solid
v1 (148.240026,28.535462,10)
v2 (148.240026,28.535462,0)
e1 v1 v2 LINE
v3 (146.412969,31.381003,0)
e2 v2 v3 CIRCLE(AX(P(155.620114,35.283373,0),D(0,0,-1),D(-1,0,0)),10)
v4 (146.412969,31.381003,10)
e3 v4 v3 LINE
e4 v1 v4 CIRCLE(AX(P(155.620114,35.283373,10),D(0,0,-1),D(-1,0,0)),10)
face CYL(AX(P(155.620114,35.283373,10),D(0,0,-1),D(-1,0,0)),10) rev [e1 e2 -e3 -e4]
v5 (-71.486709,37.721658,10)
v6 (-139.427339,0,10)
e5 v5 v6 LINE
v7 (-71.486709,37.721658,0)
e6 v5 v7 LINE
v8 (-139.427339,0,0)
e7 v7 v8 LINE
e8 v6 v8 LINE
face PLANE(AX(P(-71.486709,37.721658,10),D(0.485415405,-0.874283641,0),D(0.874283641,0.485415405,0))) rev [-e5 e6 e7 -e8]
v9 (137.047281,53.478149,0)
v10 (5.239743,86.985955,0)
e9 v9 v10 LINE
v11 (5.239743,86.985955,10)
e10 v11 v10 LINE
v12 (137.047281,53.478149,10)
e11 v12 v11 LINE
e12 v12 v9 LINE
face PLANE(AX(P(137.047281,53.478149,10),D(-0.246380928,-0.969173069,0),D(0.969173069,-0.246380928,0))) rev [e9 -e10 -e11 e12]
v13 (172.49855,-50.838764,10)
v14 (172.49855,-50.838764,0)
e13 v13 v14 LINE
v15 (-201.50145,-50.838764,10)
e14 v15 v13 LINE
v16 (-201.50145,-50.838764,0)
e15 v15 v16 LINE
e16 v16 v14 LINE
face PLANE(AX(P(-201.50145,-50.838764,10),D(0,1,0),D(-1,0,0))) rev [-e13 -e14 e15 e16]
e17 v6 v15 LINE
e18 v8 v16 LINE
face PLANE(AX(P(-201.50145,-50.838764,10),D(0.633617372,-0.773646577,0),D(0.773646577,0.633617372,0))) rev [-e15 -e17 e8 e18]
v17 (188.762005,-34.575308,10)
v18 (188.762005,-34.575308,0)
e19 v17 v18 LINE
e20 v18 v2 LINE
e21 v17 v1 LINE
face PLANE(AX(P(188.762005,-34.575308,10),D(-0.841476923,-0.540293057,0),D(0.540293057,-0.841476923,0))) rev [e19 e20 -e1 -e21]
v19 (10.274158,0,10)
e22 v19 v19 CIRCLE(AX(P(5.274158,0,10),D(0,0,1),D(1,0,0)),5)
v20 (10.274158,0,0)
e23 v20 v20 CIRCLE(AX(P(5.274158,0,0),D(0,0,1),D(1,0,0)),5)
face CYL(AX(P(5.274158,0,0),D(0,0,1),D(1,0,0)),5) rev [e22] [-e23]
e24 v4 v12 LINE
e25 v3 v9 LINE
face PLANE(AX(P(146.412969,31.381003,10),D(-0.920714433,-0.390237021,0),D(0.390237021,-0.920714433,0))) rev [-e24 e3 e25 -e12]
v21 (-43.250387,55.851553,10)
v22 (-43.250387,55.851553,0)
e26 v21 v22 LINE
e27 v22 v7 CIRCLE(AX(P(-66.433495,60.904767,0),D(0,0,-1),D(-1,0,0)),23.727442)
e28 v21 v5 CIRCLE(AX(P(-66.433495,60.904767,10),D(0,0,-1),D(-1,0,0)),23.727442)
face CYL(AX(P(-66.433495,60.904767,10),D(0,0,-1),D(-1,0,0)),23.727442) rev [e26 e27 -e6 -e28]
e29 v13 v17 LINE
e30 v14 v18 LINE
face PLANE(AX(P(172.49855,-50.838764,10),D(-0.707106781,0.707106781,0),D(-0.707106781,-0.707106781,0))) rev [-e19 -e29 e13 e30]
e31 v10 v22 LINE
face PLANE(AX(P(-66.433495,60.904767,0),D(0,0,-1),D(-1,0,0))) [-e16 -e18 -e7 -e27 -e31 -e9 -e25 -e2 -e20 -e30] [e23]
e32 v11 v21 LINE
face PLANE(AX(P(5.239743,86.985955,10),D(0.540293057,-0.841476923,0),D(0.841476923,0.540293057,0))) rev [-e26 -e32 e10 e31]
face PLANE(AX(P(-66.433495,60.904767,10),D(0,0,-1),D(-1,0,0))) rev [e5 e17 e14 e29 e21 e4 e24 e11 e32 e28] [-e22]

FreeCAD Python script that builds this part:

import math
import FreeCAD as App
import Part
import Sketcher
Q = App.Units.Quantity

doc = App.newDocument("Part")
body = doc.addObject("PartDesign::Body", "Body")

# Sketch on XY plane
sketch1 = body.newObject("Sketcher::SketchObject", "Sketch")
sketch1.AttachmentSupport = (doc.getObject("XY_Plane"), [""])
sketch1.MapMode = "FlatFace"
sketch1.addGeometry(Part.LineSegment(App.Vector(-201.5, -50.8, 0), App.Vector(172.5, -50.8, 0)), False)
sketch1.addGeometry(Part.LineSegment(App.Vector(172.5, -50.8, 0), App.Vector(188.8, -34.6, 0)), False)
sketch1.addGeometry(Part.LineSegment(App.Vector(188.8, -34.6, 0), App.Vector(148.2, 28.5, 0)), False)
sketch1.addGeometry(Part.ArcOfCircle(Part.Circle(App.Vector(155.6, 35.3, 0), App.Vector(0, 0, 1), 10), math.radians(-157.03), math.radians(-137.56)), False)
sketch1.addGeometry(Part.LineSegment(App.Vector(146.4, 31.4, 0), App.Vector(137, 53.5, 0)), False)
sketch1.addGeometry(Part.LineSegment(App.Vector(137, 53.5, 0), App.Vector(5.2, 87, 0)), False)
sketch1.addGeometry(Part.LineSegment(App.Vector(5.2, 87, 0), App.Vector(-43.3, 55.9, 0)), False)
sketch1.addGeometry(Part.ArcOfCircle(Part.Circle(App.Vector(-66.4, 60.9, 0), App.Vector(0, 0, 1), 23.7), math.radians(-102), math.radians(-12)), False)
sketch1.addGeometry(Part.LineSegment(App.Vector(-71.5, 37.7, 0), App.Vector(-139.4, 0, 0)), False)
sketch1.addGeometry(Part.LineSegment(App.Vector(-139.4, 0, 0), App.Vector(-201.5, -50.8, 0)), False)
sketch1.addConstraint(Sketcher.Constraint("Coincident", 0, 2, 1, 1))
sketch1.addConstraint(Sketcher.Constraint("Coincident", 1, 2, 2, 1))
sketch1.addConstraint(Sketcher.Constraint("Coincident", 2, 2, 3, 2))
sketch1.addConstraint(Sketcher.Constraint("Tangent", 3, 1, 4, 1))
sketch1.addConstraint(Sketcher.Constraint("Coincident", 4, 2, 5, 1))
sketch1.addConstraint(Sketcher.Constraint("Coincident", 5, 2, 6, 1))
sketch1.addConstraint(Sketcher.Constraint("Coincident", 6, 2, 7, 2))
sketch1.addConstraint(Sketcher.Constraint("Coincident", 7, 1, 8, 1))
sketch1.addConstraint(Sketcher.Constraint("Coincident", 8, 2, 9, 1))
sketch1.addConstraint(Sketcher.Constraint("Coincident", 9, 2, 0, 1))
sketch1.addConstraint(Sketcher.Constraint("Horizontal", 0))
sketch1.addConstraint(Sketcher.Constraint("PointOnObject", 8, 2, -1))
sketch1.addConstraint(Sketcher.Constraint("Perpendicular", 2, 6))
sketch1.addConstraint(Sketcher.Constraint("Radius", 3, Q("10 mm")))
sketch1.addConstraint(Sketcher.Constraint("DistanceX", 0, 1, 0, 2, Q("374 mm")))
sketch1.addConstraint(Sketcher.Constraint("Angle", 1, Q("45 deg")))
sketch1.addConstraint(Sketcher.Constraint("Distance", 1, Q("23 mm")))
sketch1.addConstraint(Sketcher.Constraint("Distance", 2, Q("75 mm")))
sketch1.addConstraint(Sketcher.Constraint("Distance", 4, Q("24 mm")))
sketch1.addConstraint(Sketcher.Constraint("Distance", 5, Q("136 mm")))
sketch1.addConstraint(Sketcher.Constraint("Radius", 7, Q("23.727442 mm")))
sketch1.addConstraint(Sketcher.Constraint("DistanceX", 7, 3, 1, 2, Q("255.195501 mm")))
sketch1.addConstraint(Sketcher.Constraint("DistanceX", -1, 1, 0, 2, Q("172.49855 mm")))
sketch1.addConstraint(Sketcher.Constraint("DistanceY", -1, 1, 2, 2, Q("28.535462 mm")))
sketch1.addConstraint(Sketcher.Constraint("DistanceX", -1, 1, 3, 1, Q("146.412969 mm")))
sketch1.addConstraint(Sketcher.Constraint("DistanceX", -1, 1, 4, 2, Q("137.047281 mm")))
sketch1.addConstraint(Sketcher.Constraint("DistanceY", -1, 1, 4, 2, Q("53.478149 mm")))
sketch1.addConstraint(Sketcher.Constraint("DistanceX", 7, 1, -1, 1, Q("71.486709 mm")))
sketch1.addConstraint(Sketcher.Constraint("DistanceY", -1, 1, 7, 1, Q("37.721658 mm")))
sketch1.addConstraint(Sketcher.Constraint("DistanceX", 8, 2, -1, 1, Q("139.427339 mm")))
sketch1.addConstraint(Sketcher.Constraint("DistanceX", 7, 3, 5, 2, Q("71.673239 mm")))
pad1 = body.newObject("PartDesign::Pad", "Pad")
pad1.Profile = sketch1
pad1.Length = 10

# Sketch on XY plane
sketch2 = body.newObject("Sketcher::SketchObject", "Sketch001")
sketch2.AttachmentSupport = (doc.getObject("XY_Plane"), [""])
sketch2.MapMode = "FlatFace"
sketch2.AttachmentOffset = App.Placement(App.Vector(0, 0, 10), App.Rotation())
sketch2.addGeometry(Part.Circle(App.Vector(5, 0, 0), App.Vector(0, 0, 1), 5), False)
sketch2.addConstraint(Sketcher.Constraint("PointOnObject", 0, 3, -1))
sketch2.addConstraint(Sketcher.Constraint("Diameter", 0, Q("10 mm")))
sketch2.addConstraint(Sketcher.Constraint("DistanceX", -1, 1, 0, 3, Q("5.274158 mm")))
pocket1 = body.newObject("PartDesign::Pocket", "Pocket")
pocket1.Profile = sketch2
pocket1.Length = 10

doc.recompute()
